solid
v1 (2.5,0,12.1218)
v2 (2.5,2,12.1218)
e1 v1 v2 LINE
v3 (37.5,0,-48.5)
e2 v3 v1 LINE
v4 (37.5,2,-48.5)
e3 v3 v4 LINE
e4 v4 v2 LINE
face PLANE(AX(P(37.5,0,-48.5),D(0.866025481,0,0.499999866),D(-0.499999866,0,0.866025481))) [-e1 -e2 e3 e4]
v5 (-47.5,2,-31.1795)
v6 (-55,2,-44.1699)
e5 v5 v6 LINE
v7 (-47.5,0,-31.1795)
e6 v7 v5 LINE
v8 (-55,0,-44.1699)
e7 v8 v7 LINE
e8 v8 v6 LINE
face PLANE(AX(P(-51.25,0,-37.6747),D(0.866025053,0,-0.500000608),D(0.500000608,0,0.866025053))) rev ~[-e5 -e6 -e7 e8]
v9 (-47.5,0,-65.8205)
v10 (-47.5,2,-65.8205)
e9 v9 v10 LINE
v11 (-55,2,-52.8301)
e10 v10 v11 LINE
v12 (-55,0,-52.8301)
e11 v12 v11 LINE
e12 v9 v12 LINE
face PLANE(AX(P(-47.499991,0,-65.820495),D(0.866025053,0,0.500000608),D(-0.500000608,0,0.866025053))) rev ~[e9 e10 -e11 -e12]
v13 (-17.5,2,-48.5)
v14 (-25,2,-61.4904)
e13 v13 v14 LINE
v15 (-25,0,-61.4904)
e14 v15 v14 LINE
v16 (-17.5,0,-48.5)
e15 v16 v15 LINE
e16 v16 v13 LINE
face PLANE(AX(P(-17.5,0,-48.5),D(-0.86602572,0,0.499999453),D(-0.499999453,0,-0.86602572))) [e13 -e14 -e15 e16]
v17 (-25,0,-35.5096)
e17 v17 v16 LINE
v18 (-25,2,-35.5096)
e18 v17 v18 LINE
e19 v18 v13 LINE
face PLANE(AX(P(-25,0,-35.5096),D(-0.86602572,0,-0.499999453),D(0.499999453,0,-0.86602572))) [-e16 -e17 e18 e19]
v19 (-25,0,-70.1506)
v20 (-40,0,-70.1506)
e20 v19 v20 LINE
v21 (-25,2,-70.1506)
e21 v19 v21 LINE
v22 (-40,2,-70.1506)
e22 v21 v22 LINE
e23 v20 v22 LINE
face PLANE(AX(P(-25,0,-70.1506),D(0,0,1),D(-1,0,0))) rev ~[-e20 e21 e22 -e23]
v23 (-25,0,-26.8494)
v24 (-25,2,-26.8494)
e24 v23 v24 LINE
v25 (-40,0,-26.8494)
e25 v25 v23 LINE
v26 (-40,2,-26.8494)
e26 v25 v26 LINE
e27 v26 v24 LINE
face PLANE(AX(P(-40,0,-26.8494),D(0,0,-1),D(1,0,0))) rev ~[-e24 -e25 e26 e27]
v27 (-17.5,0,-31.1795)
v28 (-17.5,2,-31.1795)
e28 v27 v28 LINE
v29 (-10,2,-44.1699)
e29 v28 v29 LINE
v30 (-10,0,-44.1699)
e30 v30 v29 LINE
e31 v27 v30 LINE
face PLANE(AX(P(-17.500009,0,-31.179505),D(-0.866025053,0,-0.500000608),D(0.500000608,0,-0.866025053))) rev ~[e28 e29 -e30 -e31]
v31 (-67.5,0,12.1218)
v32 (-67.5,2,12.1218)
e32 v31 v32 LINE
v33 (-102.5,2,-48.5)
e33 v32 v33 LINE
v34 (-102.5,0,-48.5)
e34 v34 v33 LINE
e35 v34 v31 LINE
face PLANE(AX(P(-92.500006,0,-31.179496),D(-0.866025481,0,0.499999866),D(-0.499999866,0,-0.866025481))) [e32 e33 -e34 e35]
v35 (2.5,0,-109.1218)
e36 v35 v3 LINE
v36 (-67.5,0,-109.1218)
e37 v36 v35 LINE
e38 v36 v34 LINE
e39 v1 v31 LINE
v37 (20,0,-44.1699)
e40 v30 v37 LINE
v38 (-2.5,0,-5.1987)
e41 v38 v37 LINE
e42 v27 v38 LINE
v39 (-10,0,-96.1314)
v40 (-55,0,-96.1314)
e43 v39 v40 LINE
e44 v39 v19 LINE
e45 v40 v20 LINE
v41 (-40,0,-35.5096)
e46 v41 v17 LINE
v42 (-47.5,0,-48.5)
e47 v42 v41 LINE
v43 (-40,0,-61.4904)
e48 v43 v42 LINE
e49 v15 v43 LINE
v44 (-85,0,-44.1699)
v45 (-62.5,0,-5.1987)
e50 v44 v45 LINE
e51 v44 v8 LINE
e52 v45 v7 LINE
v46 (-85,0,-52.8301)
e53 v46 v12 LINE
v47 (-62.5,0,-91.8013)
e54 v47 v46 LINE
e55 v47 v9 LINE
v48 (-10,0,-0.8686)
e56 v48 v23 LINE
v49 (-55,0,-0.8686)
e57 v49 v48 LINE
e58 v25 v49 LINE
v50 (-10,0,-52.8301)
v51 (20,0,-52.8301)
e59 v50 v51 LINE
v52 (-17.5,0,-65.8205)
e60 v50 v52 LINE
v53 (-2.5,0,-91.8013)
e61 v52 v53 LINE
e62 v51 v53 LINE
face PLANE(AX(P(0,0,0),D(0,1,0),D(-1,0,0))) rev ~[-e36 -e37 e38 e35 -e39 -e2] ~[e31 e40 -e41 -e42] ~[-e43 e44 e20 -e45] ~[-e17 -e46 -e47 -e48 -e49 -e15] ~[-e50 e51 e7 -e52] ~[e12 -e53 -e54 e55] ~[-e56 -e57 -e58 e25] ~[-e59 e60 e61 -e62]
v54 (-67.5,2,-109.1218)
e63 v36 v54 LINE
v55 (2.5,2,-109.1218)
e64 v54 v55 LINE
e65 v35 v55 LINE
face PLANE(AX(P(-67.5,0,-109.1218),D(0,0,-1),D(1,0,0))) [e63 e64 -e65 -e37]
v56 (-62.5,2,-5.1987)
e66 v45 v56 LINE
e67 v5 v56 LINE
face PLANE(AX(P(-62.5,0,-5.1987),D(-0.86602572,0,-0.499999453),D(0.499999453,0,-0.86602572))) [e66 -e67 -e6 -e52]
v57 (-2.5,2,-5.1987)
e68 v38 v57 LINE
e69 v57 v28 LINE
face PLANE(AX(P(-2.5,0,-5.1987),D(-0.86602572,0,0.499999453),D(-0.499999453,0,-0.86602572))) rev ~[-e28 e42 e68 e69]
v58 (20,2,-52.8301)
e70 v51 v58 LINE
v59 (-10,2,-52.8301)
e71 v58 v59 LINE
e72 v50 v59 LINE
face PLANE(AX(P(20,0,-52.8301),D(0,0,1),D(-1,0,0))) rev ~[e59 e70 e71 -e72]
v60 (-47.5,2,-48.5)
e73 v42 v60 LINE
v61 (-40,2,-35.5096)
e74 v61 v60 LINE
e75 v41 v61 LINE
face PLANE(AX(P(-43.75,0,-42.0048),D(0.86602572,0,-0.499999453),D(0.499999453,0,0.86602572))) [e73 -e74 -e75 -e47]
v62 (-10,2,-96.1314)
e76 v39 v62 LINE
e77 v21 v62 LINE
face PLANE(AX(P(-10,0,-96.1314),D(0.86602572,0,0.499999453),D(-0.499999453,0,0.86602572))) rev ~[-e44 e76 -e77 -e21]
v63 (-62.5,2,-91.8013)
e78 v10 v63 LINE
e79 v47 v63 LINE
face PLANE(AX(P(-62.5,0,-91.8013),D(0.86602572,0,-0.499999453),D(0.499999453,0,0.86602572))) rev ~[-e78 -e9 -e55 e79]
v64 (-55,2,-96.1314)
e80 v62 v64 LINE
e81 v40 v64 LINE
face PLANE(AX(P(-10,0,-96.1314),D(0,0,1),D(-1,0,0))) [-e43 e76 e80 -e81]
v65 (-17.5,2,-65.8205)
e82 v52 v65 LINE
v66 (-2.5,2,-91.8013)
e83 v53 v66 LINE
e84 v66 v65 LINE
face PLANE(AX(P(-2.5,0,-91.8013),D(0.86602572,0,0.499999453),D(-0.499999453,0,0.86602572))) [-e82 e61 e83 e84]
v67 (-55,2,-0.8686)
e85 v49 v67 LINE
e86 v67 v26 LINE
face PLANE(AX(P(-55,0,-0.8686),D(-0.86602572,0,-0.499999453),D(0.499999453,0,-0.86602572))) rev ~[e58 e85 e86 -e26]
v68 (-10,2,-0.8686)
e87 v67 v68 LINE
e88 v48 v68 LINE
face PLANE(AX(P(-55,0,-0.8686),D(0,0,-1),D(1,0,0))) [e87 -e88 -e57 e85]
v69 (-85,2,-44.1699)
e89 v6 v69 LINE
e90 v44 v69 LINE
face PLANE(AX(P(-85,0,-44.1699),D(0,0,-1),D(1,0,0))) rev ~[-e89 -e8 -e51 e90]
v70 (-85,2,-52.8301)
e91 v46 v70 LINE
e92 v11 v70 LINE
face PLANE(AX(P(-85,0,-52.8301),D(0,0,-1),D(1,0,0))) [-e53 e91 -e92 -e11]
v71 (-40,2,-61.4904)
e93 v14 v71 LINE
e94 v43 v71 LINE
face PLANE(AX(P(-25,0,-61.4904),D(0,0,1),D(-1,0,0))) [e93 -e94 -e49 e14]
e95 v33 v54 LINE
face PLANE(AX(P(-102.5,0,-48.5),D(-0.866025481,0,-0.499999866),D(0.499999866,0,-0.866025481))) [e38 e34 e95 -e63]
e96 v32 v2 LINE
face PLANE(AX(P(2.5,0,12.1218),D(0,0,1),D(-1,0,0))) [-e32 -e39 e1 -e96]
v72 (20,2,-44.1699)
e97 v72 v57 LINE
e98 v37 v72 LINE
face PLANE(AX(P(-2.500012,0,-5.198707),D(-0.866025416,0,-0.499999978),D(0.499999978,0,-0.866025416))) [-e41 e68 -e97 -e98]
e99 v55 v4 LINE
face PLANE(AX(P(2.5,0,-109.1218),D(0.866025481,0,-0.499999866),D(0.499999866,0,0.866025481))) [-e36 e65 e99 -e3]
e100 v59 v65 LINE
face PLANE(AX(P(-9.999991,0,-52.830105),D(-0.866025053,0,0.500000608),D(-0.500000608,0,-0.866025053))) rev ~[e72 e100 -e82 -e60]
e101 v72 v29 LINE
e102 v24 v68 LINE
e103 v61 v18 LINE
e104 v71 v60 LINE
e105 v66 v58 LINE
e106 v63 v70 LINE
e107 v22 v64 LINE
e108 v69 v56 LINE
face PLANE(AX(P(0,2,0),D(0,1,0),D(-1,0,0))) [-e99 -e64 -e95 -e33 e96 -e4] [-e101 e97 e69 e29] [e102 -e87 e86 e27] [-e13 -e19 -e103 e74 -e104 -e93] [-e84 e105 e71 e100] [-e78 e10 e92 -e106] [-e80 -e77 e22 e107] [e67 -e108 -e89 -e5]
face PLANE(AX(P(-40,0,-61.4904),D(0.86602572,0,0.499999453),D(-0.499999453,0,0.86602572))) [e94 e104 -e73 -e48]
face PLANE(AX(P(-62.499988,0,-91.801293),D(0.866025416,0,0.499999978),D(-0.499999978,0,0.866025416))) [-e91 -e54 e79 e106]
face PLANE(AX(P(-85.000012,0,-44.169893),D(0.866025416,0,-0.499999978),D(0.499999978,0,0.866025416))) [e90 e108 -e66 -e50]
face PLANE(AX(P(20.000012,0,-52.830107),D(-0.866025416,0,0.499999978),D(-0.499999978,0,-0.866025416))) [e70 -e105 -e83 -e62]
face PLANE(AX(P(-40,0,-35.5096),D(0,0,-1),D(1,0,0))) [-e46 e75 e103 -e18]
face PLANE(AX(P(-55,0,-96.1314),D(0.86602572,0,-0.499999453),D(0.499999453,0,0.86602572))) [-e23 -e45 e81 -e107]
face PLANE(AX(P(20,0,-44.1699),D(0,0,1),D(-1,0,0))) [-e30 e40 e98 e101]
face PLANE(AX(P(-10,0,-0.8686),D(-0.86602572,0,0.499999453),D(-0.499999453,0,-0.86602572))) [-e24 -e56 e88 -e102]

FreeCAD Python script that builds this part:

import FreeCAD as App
import Part
import Sketcher
from FreeCAD import Vector
Q = App.Units.Quantity


def add_polygon(sketch, points):
    """Adds a closed chain of lines whose ends are joined by coincident constraints."""
    first, n = sketch.GeometryCount, len(points)
    for a, b in zip(points, points[1:] + points[:1]):
        sketch.addGeometry(Part.LineSegment(App.Vector(*a, 0), App.Vector(*b, 0)), False)
    for i in range(n):
        sketch.addConstraint(Sketcher.Constraint("Coincident", first + i, 2, first + (i + 1) % n, 1))

doc = App.newDocument("Part")
params = doc.addObject("Spreadsheet::Sheet", "Params")
for row, (alias, value) in enumerate([
    ("sketch1_width", "70 mm"),
    ("pad1_length", "2 mm"),
    ("sketch2_width", "30 mm"),
    ("sketch2_length", "30 mm"),
    ("pocket1_length", "2 mm"),
], start=1):
    params.set(f"A{row}", alias)
    params.set(f"B{row}", "=" + value)
    params.setAlias(f"B{row}", alias)

body = doc.addObject("PartDesign::Body", "Body")

# Sketch on XZ plane
sketch1 = body.newObject("Sketcher::SketchObject", "Sketch")
sketch1.AttachmentSupport = (doc.getObject("XZ_Plane"), [""])
sketch1.MapMode = "FlatFace"
add_polygon(sketch1, [(-102, -48), (-68, 12), (2, 12), (38, -48), (2, -109), (-68, -109)])  # lines 0-5
sketch1.addConstraint(Sketcher.Constraint("Horizontal", 1))
sketch1.addConstraint(Sketcher.Constraint("Horizontal", 4))
sketch1.addConstraint(Sketcher.Constraint("Parallel", 0, 3))
sketch1.addConstraint(Sketcher.Constraint("Parallel", 2, 5))
sketch1.addConstraint(Sketcher.Constraint("Horizontal", 2, 2, 5, 2))
sketch1.addConstraint(Sketcher.Constraint("Vertical", 1, 2, 3, 2))
sketch1.addConstraint(Sketcher.Constraint("Vertical", 0, 2, 4, 2))
sketch1.addConstraint(Sketcher.Constraint("DistanceX", 5, 2, 2, 2, 140.0))
sketch1.addConstraint(Sketcher.Constraint("DistanceX", -1, 1, 1, 2, 2.5))
sketch1.addConstraint(Sketcher.Constraint("DistanceX", 1, 1, 1, 2, 70.0))
sketch1.addConstraint(Sketcher.Constraint("Angle", 0, Q("60 deg")))
sketch1.addConstraint(Sketcher.Constraint("DistanceY", 2, 2, -1, 1, 48.5))
sketch1.setExpression("Constraints[15]", "Params.sketch1_width")
pad1 = body.newObject("PartDesign::Pad", "Pad")
pad1.Profile = sketch1
pad1.setExpression("Length", "Params.pad1_length")
pad1.Reversed = True

# Sketch on XZ plane
sketch2 = body.newObject("Sketcher::SketchObject", "Sketch001")
sketch2.AttachmentSupport = (doc.getObject("XZ_Plane"), [""])
sketch2.MapMode = "FlatFace"
add_polygon(sketch2, [(-62, -5), (-85, -44), (-55, -44), (-48, -31)])  # lines 0-3
add_polygon(sketch2, [(-10, -1), (-55, -1), (-40, -27), (-25, -27)])  # lines 4-7
add_polygon(sketch2, [(-25, -36), (-40, -36), (-48, -48), (-40, -61), (-25, -61), (-18, -48)])  # lines 8-13
add_polygon(sketch2, [(-2, -5), (-18, -31), (-10, -44), (20, -44)])  # lines 14-17
add_polygon(sketch2, [(-85, -53), (-62, -92), (-47, -66), (-55, -53)])  # lines 18-21
add_polygon(sketch2, [(-55, -96), (-10, -96), (-25, -70), (-40, -70)])  # lines 22-25
add_polygon(sketch2, [(20, -53), (-10, -53), (-18, -66), (-2, -92)])  # lines 26-29
sketch2.addConstraint(Sketcher.Constraint("Horizontal", 1))
sketch2.addConstraint(Sketcher.Constraint("Horizontal", 4))
sketch2.addConstraint(Sketcher.Constraint("Horizontal", 6))
sketch2.addConstraint(Sketcher.Constraint("Horizontal", 8))
sketch2.addConstraint(Sketcher.Constraint("Horizontal", 11))
sketch2.addConstraint(Sketcher.Constraint("Horizontal", 16))
sketch2.addConstraint(Sketcher.Constraint("Horizontal", 21))
sketch2.addConstraint(Sketcher.Constraint("Horizontal", 22))
sketch2.addConstraint(Sketcher.Constraint("Horizontal", 24))
sketch2.addConstraint(Sketcher.Constraint("Horizontal", 26))
sketch2.addConstraint(Sketcher.Constraint("Parallel", 0, 2))
sketch2.addConstraint(Sketcher.Constraint("Parallel", 3, 5))
sketch2.addConstraint(Sketcher.Constraint("Parallel", 2, 7))
sketch2.addConstraint(Sketcher.Constraint("Parallel", 7, 9))
sketch2.addConstraint(Sketcher.Constraint("Parallel", 5, 10))
sketch2.addConstraint(Sketcher.Constraint("Parallel", 9, 12))
sketch2.addConstraint(Sketcher.Constraint("Parallel", 10, 13))
sketch2.addConstraint(Sketcher.Constraint("Parallel", 12, 14))
sketch2.addConstraint(Sketcher.Constraint("Parallel", 13, 15))
sketch2.addConstraint(Sketcher.Constraint("Parallel", 15, 17))
sketch2.addConstraint(Sketcher.Constraint("Parallel", 17, 18))
sketch2.addConstraint(Sketcher.Constraint("Parallel", 14, 19))
sketch2.addConstraint(Sketcher.Constraint("Parallel", 18, 20))
sketch2.addConstraint(Sketcher.Constraint("Parallel", 20, 23))
sketch2.addConstraint(Sketcher.Constraint("Parallel", 19, 25))
sketch2.addConstraint(Sketcher.Constraint("Parallel", 25, 27))
sketch2.addConstraint(Sketcher.Constraint("Parallel", 23, 28))
sketch2.addConstraint(Sketcher.Constraint("Parallel", 27, 29))
sketch2.addConstraint(Sketcher.Constraint("Horizontal", 9, 2, 12, 2))
sketch2.addConstraint(Sketcher.Constraint("Horizontal", 2, 2, 14, 2))
sketch2.addConstraint(Sketcher.Constraint("Horizontal", 1, 2, 15, 2))
sketch2.addConstraint(Sketcher.Constraint("Horizontal", 3, 2, 17, 2))
sketch2.addConstraint(Sketcher.Constraint("Horizontal", 21, 2, 26, 2))
sketch2.addConstraint(Sketcher.Constraint("Horizontal", 19, 2, 27, 2))
sketch2.addConstraint(Sketcher.Constraint("Horizontal", 18, 2, 28, 2))
sketch2.addConstraint(Sketcher.Constraint("Vertical", 1, 2, 4, 2))
sketch2.addConstraint(Sketcher.Constraint("Vertical", 5, 2, 8, 2))
sketch2.addConstraint(Sketcher.Constraint("Vertical", 2, 2, 9, 2))
sketch2.addConstraint(Sketcher.Constraint("Vertical", 8, 2, 10, 2))
sketch2.addConstraint(Sketcher.Constraint("Vertical", 6, 2, 11, 2))
sketch2.addConstraint(Sketcher.Constraint("Vertical", 11, 2, 13, 2))
sketch2.addConstraint(Sketcher.Constraint("Vertical", 12, 2, 14, 2))
sketch2.addConstraint(Sketcher.Constraint("Vertical", 3, 2, 18, 2))
sketch2.addConstraint(Sketcher.Constraint("Vertical", 9, 2, 19, 2))
sketch2.addConstraint(Sketcher.Constraint("Vertical", 4, 2, 20, 2))
sketch2.addConstraint(Sketcher.Constraint("Vertical", 15, 2, 22, 2))
sketch2.addConstraint(Sketcher.Constraint("Vertical", 13, 2, 23, 2))
sketch2.addConstraint(Sketcher.Constraint("Vertical", 10, 2, 24, 2))
sketch2.addConstraint(Sketcher.Constraint("Vertical", 22, 2, 26, 2))
sketch2.addConstraint(Sketcher.Constraint("Equal", 3, 5))
sketch2.addConstraint(Sketcher.Constraint("Equal", 2, 9))
sketch2.addConstraint(Sketcher.Constraint("DistanceX", 1, 1, 1, 2, 30.0))
sketch2.addConstraint(Sketcher.Constraint("Distance", 3, 30.0))
sketch2.addConstraint(Sketcher.Constraint("DistanceX", 1, 2, 6, 2, 30.0))
sketch2.addConstraint(Sketcher.Constraint("DistanceX", 0, 2, -1, 1, 85.0))
sketch2.addConstraint(Sketcher.Constraint("DistanceY", 9, 2, -1, 1, 48.5))
sketch2.addConstraint(Sketcher.Constraint("DistanceY", 0, 2, -1, 1, 44.17))
sketch2.addConstraint(Sketcher.Constraint("DistanceY", 20, 2, -1, 1, 52.83))
sketch2.addConstraint(Sketcher.Constraint("DistanceY", 3, 2, 4, 2, 4.33))
sketch2.addConstraint(Sketcher.Constraint("DistanceY", 23, 2, 19, 2, 4.33))
sketch2.setExpression("Constraints[81]", "Params.sketch2_width")
sketch2.setExpression("Constraints[82]", "Params.sketch2_length")
pocket1 = body.newObject("PartDesign::Pocket", "Pocket")
pocket1.Profile = sketch2
pocket1.setExpression("Length", "Params.pocket1_length")

doc.recompute()
